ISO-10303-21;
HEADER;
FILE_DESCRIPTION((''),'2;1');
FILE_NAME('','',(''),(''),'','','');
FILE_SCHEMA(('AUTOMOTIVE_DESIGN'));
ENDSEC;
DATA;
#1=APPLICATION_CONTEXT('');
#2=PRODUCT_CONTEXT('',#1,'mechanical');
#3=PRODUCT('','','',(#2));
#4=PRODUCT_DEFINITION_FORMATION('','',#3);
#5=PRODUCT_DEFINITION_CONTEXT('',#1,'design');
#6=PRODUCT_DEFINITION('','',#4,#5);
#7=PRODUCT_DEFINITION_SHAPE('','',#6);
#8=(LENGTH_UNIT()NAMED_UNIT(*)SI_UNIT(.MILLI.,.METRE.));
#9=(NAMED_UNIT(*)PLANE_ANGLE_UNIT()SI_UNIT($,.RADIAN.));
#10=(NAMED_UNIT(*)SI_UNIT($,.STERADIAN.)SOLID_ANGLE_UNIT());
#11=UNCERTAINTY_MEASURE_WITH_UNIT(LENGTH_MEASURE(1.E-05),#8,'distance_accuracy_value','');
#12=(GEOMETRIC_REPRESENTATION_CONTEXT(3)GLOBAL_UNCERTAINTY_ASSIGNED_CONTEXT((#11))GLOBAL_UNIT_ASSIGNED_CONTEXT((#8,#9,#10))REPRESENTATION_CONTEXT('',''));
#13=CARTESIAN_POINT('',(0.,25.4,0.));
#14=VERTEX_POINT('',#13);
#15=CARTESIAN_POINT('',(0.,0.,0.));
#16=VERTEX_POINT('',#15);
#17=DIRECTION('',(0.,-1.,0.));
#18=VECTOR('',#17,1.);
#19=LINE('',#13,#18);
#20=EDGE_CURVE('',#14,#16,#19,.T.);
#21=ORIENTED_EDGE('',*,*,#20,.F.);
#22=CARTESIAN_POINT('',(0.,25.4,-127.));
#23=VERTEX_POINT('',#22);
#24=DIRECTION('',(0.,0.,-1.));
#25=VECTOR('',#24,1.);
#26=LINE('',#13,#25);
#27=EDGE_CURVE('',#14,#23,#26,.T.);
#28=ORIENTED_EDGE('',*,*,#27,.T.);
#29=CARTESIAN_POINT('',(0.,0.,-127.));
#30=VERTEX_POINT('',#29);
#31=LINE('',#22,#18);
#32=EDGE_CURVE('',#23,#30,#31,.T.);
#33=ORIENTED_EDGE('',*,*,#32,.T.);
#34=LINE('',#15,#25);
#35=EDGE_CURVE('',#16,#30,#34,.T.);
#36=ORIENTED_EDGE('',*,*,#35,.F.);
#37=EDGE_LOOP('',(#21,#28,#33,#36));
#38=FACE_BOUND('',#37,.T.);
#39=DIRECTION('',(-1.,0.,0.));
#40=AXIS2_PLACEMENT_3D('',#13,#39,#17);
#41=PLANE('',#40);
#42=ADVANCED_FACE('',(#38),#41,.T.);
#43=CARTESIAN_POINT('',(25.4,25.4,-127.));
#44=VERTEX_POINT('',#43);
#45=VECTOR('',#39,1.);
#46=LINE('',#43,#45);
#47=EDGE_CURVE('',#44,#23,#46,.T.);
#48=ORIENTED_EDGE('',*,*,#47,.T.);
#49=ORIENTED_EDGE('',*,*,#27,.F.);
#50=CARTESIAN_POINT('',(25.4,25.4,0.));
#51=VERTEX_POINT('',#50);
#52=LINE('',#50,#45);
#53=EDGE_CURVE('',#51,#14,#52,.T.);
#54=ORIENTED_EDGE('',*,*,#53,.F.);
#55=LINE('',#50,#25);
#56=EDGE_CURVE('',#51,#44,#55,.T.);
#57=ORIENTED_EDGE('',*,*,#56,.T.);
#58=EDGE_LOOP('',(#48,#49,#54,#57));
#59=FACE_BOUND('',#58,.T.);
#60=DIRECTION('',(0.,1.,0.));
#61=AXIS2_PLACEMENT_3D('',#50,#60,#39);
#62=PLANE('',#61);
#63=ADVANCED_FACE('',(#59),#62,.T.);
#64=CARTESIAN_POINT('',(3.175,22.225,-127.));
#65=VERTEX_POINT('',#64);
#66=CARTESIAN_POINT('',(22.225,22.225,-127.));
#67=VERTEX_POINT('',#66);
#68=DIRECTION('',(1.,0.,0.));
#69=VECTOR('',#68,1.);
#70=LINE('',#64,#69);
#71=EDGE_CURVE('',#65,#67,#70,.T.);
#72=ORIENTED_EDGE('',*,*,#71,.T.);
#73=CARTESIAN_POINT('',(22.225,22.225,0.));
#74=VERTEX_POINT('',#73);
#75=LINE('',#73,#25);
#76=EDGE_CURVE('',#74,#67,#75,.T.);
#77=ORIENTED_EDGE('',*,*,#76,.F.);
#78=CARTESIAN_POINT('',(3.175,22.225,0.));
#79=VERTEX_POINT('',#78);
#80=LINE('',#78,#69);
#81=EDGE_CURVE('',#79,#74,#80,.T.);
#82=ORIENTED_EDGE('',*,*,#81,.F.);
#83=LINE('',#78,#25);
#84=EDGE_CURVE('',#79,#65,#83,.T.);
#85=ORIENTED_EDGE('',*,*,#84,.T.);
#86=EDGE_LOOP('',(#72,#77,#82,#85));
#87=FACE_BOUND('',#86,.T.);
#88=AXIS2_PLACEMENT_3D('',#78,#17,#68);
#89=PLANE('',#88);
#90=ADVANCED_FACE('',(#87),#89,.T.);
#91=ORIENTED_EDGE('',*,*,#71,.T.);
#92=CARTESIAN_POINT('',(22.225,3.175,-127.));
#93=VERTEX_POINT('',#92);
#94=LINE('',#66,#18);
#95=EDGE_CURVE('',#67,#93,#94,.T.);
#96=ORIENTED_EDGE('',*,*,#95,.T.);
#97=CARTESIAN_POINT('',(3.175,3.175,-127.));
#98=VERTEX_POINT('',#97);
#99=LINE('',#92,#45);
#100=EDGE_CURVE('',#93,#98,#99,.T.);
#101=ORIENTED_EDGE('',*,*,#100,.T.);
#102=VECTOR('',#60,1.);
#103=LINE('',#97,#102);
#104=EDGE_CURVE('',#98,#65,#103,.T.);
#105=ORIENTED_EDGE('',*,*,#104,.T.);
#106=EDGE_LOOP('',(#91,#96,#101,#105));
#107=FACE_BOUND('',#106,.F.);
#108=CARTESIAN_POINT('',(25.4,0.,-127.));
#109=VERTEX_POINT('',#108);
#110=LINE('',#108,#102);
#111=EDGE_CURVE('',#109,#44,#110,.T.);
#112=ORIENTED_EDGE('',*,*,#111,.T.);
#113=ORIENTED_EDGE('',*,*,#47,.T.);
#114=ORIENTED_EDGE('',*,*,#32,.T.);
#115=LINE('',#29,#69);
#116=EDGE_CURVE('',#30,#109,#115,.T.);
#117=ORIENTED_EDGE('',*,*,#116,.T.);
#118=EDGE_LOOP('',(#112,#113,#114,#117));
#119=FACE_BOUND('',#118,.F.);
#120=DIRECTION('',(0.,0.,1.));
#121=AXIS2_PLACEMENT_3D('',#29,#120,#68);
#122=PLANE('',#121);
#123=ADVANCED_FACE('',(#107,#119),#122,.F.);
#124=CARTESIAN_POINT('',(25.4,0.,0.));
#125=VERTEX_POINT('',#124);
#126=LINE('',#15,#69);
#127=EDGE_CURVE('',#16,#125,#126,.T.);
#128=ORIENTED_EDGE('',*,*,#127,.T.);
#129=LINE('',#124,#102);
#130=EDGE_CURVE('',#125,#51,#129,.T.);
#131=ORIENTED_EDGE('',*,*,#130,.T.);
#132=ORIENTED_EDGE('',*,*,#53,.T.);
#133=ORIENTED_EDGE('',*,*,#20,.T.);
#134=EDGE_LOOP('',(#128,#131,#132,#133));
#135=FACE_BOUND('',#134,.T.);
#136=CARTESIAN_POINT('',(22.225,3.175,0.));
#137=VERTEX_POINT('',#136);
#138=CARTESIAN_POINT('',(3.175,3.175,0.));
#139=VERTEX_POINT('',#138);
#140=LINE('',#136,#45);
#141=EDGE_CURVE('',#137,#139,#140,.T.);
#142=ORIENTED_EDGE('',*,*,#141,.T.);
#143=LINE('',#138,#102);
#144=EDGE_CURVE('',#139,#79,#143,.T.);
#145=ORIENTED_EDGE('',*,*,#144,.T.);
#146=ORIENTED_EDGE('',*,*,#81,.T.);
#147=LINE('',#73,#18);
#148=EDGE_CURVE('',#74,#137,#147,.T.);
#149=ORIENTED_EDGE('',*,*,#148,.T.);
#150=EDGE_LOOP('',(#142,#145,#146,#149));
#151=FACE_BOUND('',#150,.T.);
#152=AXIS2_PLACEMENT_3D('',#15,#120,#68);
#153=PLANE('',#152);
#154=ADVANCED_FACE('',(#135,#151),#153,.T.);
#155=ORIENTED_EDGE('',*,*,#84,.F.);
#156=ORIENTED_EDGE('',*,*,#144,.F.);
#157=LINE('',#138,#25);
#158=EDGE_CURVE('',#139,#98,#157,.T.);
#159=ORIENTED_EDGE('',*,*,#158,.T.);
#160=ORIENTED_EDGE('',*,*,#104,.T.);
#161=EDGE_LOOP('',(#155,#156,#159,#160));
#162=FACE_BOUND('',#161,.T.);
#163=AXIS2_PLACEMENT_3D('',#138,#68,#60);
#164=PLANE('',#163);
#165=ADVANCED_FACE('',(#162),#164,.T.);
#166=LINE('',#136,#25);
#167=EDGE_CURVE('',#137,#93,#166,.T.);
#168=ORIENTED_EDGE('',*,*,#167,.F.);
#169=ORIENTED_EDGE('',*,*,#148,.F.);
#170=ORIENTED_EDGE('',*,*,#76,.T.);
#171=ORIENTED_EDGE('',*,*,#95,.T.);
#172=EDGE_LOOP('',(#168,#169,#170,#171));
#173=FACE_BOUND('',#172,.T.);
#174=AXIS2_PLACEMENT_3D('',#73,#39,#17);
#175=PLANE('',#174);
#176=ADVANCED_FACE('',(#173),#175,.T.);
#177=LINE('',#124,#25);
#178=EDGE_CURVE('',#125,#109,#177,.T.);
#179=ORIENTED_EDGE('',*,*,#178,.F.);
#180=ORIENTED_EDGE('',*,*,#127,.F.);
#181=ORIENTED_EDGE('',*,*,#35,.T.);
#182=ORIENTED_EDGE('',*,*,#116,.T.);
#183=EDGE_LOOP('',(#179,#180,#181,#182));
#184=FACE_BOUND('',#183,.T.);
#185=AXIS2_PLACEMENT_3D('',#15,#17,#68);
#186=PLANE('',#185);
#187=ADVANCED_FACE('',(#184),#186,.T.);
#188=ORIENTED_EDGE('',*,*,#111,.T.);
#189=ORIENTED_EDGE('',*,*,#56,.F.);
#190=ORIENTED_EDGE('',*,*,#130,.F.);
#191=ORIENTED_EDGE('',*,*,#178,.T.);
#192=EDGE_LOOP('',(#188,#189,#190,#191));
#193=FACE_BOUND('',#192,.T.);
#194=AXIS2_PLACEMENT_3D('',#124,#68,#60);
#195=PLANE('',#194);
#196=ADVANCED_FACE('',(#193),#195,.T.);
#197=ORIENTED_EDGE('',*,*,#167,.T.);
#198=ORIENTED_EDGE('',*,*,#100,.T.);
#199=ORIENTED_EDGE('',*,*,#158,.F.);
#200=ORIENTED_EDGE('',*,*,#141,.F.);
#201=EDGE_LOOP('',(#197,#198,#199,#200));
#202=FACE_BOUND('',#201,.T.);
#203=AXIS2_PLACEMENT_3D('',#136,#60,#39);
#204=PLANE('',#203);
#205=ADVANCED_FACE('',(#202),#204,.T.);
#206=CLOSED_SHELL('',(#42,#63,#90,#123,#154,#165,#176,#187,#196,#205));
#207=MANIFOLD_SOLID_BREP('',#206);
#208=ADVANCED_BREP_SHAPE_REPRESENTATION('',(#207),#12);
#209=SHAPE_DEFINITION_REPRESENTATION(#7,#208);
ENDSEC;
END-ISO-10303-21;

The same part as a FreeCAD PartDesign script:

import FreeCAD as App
import Part
import Sketcher
Q = App.Units.Quantity

doc = App.newDocument("Part")
body = doc.addObject("PartDesign::Body", "Body")

# Sketch on XY plane
sketch1 = body.newObject("Sketcher::SketchObject", "Sketch")
sketch1.AttachmentSupport = (doc.getObject("XY_Plane"), [""])
sketch1.MapMode = "FlatFace"
sketch1.addGeometry([
    Part.LineSegment(App.Vector(0, 25.4, 0), App.Vector(0, 0, 0)),  # 0
    Part.LineSegment(App.Vector(0, 0, 0), App.Vector(25.4, 0, 0)),  # 1
    Part.LineSegment(App.Vector(25.4, 0, 0), App.Vector(25.4, 25.4, 0)),  # 2
    Part.LineSegment(App.Vector(25.4, 25.4, 0), App.Vector(0, 25.4, 0)),  # 3
    Part.LineSegment(App.Vector(3.175, 3.175, 0), App.Vector(3.175, 22.225, 0)),  # 4
    Part.LineSegment(App.Vector(3.175, 22.225, 0), App.Vector(22.225, 22.225, 0)),  # 5
    Part.LineSegment(App.Vector(22.225, 22.225, 0), App.Vector(22.225, 3.175, 0)),  # 6
    Part.LineSegment(App.Vector(22.225, 3.175, 0), App.Vector(3.175, 3.175, 0)),  # 7
], False)
sketch1.addConstraint([
    Sketcher.Constraint("Coincident", 0, 2, 1, 1),
    Sketcher.Constraint("Coincident", 1, 2, 2, 1),
    Sketcher.Constraint("Coincident", 2, 2, 3, 1),
    Sketcher.Constraint("Coincident", 3, 2, 0, 1),
    Sketcher.Constraint("Coincident", 4, 2, 5, 1),
    Sketcher.Constraint("Coincident", 5, 2, 6, 1),
    Sketcher.Constraint("Coincident", 6, 2, 7, 1),
    Sketcher.Constraint("Coincident", 7, 2, 4, 1),
    Sketcher.Constraint("Vertical", 0),
    Sketcher.Constraint("Horizontal", 1),
    Sketcher.Constraint("Vertical", 2),
    Sketcher.Constraint("Horizontal", 3),
    Sketcher.Constraint("Vertical", 4),
    Sketcher.Constraint("Horizontal", 5),
    Sketcher.Constraint("Vertical", 6),
    Sketcher.Constraint("Horizontal", 7),
    Sketcher.Constraint("Coincident", 0, 2, -1, 1),
    Sketcher.Constraint("Equal", 3, 0),
    Sketcher.Constraint("Equal", 7, 4),
    Sketcher.Constraint("DistanceX", 1, 1, 1, 2, Q("1 in")),
    Sketcher.Constraint("DistanceX", -1, 1, 4, 2, Q("0.125 in")),
    Sketcher.Constraint("DistanceY", -1, 1, 6, 2, Q("0.125 in")),
    Sketcher.Constraint("DistanceY", 4, 2, 3, 2, Q("0.125 in")),
])
pad1 = body.newObject("PartDesign::Pad", "Pad")
pad1.Profile = sketch1
pad1.Length = Q("5 in")
pad1.Reversed = True

doc.recompute()
